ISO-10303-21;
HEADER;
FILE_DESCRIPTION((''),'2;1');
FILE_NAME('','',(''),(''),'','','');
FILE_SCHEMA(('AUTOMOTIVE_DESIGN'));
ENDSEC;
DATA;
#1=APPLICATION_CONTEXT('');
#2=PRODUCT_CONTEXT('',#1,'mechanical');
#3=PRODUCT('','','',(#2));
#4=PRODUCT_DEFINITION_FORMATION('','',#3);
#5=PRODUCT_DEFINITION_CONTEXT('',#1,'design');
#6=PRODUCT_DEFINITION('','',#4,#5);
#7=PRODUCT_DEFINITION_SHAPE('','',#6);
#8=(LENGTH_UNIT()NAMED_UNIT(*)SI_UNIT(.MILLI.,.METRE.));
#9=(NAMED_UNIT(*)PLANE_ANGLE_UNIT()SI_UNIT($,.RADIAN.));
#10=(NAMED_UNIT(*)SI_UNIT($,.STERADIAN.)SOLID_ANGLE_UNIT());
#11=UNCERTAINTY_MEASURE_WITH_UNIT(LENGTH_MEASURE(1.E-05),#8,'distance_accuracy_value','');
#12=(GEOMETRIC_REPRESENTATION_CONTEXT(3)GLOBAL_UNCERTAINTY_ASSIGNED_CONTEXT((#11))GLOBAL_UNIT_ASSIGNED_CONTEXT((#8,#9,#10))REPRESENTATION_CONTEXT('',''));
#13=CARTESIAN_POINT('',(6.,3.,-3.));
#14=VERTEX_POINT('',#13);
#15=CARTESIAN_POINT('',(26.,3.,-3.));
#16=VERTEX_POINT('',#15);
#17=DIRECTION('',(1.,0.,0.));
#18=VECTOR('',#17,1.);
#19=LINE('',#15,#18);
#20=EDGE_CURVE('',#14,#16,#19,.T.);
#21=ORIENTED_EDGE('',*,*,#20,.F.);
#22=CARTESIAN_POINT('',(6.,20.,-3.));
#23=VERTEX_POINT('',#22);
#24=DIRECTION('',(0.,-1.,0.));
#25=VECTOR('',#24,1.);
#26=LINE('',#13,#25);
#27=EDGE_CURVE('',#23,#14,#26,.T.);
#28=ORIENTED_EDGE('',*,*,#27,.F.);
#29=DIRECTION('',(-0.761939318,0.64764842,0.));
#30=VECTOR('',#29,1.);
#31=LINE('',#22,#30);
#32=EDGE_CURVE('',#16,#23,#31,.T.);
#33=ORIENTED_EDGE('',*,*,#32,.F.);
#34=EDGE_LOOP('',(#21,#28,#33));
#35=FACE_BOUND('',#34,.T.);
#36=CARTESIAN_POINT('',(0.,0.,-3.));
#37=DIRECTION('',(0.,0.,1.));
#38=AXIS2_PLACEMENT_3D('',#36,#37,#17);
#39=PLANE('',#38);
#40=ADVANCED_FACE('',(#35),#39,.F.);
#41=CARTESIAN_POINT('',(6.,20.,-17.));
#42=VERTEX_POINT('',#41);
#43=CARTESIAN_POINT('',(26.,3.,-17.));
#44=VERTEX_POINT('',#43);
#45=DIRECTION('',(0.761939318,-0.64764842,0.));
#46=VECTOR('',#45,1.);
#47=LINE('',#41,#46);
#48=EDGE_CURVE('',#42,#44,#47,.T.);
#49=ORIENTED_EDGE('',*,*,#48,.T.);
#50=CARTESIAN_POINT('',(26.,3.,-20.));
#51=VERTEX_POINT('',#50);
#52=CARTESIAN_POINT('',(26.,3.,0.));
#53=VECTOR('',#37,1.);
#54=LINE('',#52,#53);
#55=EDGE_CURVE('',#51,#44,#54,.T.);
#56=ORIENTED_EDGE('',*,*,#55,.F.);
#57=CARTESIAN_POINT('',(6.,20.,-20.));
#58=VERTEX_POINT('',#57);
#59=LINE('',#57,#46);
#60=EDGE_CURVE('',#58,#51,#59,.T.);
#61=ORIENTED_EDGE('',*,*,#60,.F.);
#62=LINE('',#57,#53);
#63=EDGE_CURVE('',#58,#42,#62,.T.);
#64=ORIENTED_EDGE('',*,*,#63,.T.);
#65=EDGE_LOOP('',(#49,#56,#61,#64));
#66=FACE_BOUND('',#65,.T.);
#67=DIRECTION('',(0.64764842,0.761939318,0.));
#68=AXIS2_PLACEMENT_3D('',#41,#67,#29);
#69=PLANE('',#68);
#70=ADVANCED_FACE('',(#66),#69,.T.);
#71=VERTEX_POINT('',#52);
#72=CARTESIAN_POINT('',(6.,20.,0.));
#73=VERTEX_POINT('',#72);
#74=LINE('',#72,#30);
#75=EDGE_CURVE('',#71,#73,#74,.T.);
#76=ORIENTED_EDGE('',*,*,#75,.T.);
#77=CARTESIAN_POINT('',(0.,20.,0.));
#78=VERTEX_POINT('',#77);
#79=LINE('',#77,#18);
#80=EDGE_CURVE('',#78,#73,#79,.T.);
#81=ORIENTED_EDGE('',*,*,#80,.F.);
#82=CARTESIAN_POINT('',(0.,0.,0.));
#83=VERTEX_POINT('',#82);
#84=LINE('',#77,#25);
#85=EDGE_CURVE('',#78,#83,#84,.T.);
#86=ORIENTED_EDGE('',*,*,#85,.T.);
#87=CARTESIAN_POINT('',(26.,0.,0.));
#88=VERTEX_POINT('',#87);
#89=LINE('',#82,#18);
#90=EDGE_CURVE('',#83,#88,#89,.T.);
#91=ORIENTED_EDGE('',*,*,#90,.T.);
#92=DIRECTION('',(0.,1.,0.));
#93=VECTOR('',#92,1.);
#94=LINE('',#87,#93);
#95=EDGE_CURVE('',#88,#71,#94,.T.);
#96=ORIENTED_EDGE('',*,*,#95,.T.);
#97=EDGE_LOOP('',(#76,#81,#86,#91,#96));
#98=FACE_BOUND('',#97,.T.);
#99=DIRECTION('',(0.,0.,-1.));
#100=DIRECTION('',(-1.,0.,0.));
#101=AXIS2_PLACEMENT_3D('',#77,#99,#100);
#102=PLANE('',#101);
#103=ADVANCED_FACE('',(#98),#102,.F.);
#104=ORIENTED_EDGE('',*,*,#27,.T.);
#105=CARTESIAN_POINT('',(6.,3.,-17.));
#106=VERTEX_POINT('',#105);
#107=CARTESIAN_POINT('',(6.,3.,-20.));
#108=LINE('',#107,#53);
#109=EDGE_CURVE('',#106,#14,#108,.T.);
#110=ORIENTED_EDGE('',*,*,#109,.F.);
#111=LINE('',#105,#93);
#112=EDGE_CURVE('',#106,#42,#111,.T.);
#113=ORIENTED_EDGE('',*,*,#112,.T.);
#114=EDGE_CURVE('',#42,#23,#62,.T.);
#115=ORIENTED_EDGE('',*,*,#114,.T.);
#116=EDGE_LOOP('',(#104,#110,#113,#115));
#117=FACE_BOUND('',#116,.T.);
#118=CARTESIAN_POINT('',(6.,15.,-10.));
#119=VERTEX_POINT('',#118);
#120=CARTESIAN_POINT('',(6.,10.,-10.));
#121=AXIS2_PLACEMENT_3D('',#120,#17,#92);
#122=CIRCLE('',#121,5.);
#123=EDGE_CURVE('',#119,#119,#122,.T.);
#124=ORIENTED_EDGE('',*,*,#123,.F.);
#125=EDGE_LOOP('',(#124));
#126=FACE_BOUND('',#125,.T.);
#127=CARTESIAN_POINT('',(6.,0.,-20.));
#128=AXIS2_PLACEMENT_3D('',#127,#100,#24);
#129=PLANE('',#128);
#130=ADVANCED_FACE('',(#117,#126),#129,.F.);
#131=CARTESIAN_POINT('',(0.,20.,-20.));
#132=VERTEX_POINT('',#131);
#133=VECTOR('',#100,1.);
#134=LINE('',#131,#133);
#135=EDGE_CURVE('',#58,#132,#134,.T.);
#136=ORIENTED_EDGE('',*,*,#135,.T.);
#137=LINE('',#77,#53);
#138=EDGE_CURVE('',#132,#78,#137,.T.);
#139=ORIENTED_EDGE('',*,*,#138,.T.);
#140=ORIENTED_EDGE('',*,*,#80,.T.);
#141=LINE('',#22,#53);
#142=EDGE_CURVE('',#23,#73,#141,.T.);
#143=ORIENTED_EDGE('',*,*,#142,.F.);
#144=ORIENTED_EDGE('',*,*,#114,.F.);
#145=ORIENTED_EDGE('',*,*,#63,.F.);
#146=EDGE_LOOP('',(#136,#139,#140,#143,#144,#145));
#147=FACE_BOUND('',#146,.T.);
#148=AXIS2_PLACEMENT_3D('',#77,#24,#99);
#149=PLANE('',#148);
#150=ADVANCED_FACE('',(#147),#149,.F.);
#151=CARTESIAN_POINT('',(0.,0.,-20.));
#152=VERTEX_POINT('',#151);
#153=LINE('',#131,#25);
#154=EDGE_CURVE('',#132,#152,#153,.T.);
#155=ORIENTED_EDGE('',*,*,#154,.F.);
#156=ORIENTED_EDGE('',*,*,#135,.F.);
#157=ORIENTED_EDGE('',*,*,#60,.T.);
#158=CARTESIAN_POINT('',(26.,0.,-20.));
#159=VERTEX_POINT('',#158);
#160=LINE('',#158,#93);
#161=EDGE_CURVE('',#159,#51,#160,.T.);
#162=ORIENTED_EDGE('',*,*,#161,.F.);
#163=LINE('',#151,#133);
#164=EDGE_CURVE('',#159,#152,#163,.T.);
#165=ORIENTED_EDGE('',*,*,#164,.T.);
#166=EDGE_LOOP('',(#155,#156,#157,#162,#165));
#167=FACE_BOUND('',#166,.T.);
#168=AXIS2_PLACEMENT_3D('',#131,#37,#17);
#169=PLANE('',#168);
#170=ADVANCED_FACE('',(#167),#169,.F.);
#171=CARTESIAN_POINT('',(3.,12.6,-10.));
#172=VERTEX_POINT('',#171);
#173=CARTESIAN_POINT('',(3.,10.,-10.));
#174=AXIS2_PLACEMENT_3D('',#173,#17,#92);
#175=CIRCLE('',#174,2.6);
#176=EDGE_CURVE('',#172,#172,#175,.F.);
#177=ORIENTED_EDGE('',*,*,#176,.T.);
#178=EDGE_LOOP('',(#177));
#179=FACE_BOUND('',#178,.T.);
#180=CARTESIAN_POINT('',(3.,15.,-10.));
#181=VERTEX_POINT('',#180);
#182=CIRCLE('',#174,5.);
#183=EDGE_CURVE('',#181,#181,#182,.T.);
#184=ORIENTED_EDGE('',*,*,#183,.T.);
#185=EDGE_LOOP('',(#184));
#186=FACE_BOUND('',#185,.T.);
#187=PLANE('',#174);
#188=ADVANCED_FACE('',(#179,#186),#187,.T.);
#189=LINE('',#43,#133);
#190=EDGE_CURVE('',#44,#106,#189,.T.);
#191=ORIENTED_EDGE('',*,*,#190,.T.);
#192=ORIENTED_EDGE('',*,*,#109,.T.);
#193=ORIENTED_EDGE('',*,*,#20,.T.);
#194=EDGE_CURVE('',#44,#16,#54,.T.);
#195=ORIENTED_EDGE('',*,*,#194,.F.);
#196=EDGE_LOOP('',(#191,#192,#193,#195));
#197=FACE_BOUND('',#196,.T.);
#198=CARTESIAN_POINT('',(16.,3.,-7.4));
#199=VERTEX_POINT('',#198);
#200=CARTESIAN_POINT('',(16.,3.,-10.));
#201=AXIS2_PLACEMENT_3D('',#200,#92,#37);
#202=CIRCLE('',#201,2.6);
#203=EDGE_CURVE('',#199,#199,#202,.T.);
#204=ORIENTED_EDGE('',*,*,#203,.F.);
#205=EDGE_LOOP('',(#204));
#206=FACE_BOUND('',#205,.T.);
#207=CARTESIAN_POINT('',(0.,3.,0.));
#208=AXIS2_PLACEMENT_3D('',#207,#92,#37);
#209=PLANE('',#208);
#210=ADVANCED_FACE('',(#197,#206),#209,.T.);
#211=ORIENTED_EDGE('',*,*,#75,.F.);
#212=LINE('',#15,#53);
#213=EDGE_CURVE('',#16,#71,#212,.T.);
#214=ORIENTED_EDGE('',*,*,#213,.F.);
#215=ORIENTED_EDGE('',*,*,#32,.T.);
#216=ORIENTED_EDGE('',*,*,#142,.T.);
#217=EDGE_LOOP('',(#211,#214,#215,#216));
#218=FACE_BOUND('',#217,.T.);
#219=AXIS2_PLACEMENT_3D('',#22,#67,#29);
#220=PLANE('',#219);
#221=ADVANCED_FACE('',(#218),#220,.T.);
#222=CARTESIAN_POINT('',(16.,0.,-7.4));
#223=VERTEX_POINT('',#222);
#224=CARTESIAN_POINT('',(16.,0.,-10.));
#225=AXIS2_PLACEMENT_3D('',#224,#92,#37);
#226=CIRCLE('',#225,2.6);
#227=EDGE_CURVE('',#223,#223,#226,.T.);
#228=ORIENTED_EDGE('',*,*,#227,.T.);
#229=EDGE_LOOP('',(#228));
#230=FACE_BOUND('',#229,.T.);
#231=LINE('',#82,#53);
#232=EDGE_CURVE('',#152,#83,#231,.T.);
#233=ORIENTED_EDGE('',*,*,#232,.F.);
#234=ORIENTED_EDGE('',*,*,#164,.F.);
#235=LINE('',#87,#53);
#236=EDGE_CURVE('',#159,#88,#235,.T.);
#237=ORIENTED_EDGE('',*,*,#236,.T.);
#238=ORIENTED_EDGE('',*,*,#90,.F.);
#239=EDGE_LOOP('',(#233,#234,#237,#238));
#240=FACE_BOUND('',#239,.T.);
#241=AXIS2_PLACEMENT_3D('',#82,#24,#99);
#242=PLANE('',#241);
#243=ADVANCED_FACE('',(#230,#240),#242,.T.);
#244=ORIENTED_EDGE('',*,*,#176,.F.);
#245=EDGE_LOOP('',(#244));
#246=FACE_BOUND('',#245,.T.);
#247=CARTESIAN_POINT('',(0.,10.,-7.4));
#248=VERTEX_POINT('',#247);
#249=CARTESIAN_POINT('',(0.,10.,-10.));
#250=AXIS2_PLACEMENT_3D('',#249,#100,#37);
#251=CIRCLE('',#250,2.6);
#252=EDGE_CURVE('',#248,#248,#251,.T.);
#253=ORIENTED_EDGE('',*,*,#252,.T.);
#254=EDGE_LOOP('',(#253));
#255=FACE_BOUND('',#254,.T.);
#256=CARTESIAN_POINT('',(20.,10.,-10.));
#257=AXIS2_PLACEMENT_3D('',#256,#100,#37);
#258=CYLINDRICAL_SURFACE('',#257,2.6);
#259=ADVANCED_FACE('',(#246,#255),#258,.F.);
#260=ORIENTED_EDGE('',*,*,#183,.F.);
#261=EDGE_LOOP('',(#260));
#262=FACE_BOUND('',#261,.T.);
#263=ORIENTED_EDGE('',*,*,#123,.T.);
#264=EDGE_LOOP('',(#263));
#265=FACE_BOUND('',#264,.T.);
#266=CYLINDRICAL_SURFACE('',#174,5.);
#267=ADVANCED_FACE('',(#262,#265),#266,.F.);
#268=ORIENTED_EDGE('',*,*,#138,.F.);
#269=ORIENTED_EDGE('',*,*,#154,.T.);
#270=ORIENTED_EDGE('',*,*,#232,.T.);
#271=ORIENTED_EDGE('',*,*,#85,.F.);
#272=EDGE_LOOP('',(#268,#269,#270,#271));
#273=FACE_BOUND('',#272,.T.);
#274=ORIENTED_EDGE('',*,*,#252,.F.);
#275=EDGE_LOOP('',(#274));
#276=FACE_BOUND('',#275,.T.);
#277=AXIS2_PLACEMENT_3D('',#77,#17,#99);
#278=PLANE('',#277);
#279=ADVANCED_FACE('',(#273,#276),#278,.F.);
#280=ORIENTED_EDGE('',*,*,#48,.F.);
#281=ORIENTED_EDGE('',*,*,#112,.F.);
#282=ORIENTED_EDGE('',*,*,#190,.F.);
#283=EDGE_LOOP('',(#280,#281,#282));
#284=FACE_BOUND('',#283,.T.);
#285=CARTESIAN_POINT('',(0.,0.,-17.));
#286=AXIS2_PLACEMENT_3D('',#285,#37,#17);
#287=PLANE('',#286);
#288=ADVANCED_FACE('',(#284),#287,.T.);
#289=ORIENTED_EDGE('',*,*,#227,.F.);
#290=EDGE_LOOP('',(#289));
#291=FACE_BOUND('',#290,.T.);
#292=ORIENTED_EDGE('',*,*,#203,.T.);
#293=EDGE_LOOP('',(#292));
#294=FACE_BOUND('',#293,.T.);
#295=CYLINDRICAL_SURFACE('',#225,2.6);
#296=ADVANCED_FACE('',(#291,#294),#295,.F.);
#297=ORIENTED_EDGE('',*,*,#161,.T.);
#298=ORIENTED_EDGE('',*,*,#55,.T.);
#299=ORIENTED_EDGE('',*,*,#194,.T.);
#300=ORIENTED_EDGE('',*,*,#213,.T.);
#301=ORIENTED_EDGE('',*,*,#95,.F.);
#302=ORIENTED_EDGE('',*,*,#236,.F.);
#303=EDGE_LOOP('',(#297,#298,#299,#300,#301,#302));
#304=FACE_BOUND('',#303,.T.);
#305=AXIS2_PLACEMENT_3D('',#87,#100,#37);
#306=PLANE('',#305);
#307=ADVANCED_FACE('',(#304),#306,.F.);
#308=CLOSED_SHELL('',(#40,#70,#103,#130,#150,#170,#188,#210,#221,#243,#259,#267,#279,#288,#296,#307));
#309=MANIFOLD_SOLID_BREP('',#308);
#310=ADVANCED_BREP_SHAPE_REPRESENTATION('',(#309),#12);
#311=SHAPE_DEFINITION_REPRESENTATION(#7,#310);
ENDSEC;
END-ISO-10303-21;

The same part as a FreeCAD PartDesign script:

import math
import FreeCAD as App
import Part
import Sketcher
from FreeCAD import Vector
Q = App.Units.Quantity


def add_polygon(sketch, points):
    """Adds a closed chain of lines whose ends are joined by coincident constraints."""
    first, n = sketch.GeometryCount, len(points)
    for a, b in zip(points, points[1:] + points[:1]):
        sketch.addGeometry(Part.LineSegment(App.Vector(*a, 0), App.Vector(*b, 0)), False)
    for i in range(n):
        sketch.addConstraint(Sketcher.Constraint("Coincident", first + i, 2, first + (i + 1) % n, 1))

doc = App.newDocument("Part")
body = doc.addObject("PartDesign::Body", "Body")

sketch1 = body.newObject("Sketcher::SketchObject", "Sketch")
sketch1.AttachmentSupport = (doc.getObject("XZ_Plane"), [""])
sketch1.MapMode = "FlatFace"
add_polygon(sketch1, [(0, -20), (0, 0), (40, 0), (40, -20)])
sketch1.addConstraint([
    Sketcher.Constraint("Vertical", 0),
    Sketcher.Constraint("Horizontal", 1),
    Sketcher.Constraint("Vertical", 2),
    Sketcher.Constraint("Horizontal", 3),
    Sketcher.Constraint("Coincident", 0, 2, -1, 1),
    Sketcher.Constraint("DistanceX", 1, 1, 1, 2, Q("40 mm")),
    Sketcher.Constraint("DistanceY", 0, 1, 0, 2, Q("20 mm")),
])
pad1 = body.newObject("PartDesign::Pad", "Pad")
pad1.Profile = sketch1
pad1.Length = 20
pad1.Reversed = True

sketch2 = body.newObject("Sketcher::SketchObject", "Sketch001")
sketch2.AttachmentSupport = (doc.getObject("XY_Plane"), [""])
sketch2.MapMode = "FlatFace"
add_polygon(sketch2, [(6, 20), (6, 6), (40, 6), (40, 20)])
sketch2.addConstraint([
    Sketcher.Constraint("Vertical", 0),
    Sketcher.Constraint("Horizontal", 1),
    Sketcher.Constraint("Vertical", 2),
    Sketcher.Constraint("Horizontal", 3),
    Sketcher.Constraint("DistanceX", 1, 1, 1, 2, Q("34 mm")),
    Sketcher.Constraint("DistanceY", 0, 2, 0, 1, Q("14 mm")),
    Sketcher.Constraint("DistanceX", -1, 1, 0, 2, Q("6 mm")),
    Sketcher.Constraint("DistanceY", -1, 1, 0, 2, Q("6 mm")),
])
pocket1 = body.newObject("PartDesign::Pocket", "Pocket")
pocket1.Profile = sketch2
pocket1.Length = 20

sketch3 = body.newObject("Sketcher::SketchObject", "Sketch002")
sketch3.AttachmentSupport = (doc.getObject("YZ_Plane"), [""])
sketch3.MapMode = "FlatFace"
sketch3.addGeometry([
    Part.ArcOfCircle(Part.Circle(Vector(10, -10, 0), Vector(0, 0, 1), 2.6), math.radians(-45), math.radians(90)),
    Part.ArcOfCircle(Part.Circle(Vector(10, -10, 0), Vector(0, 0, 1), 2.6), math.radians(135), math.radians(315)),
    Part.ArcOfCircle(Part.Circle(Vector(10, -10, 0), Vector(0, 0, 1), 2.6), math.radians(90), math.radians(135)),
], False)
sketch3.addConstraint([
    Sketcher.Constraint("Tangent", 0, 1, 1, 2),
    Sketcher.Constraint("Tangent", 1, 1, 2, 2),
    Sketcher.Constraint("Tangent", 2, 1, 0, 2),
    Sketcher.Constraint("Vertical", 1, 3, 2, 1),
    Sketcher.Constraint("Radius", 0, Q("2.6 mm")),
    Sketcher.Constraint("DistanceX", -1, 1, 0, 3, Q("10 mm")),
    Sketcher.Constraint("DistanceY", 0, 3, -1, 1, Q("10 mm")),
    Sketcher.Constraint("DistanceX", -1, 1, 0, 1, Q("11.838478 mm")),
    Sketcher.Constraint("DistanceX", -1, 1, 1, 1, Q("8.161522 mm")),
])
pocket2 = body.newObject("PartDesign::Pocket", "Pocket001")
pocket2.Profile = sketch3
pocket2.Length = 20
pocket2.Reversed = True

sketch4 = body.newObject("Sketcher::SketchObject", "Sketch003")
sketch4.AttachmentSupport = (doc.getObject("YZ_Plane"), [""])
sketch4.MapMode = "FlatFace"
sketch4.AttachmentOffset = App.Placement(Vector(0, 0, 6), App.Rotation())
sketch4.addGeometry(Part.Circle(Vector(10, -10, 0), Vector(0, 0, 1), 5), False)
sketch4.addConstraint([
    Sketcher.Constraint("Diameter", 0, Q("10 mm")),
    Sketcher.Constraint("DistanceX", -1, 1, 0, 3, Q("10 mm")),
    Sketcher.Constraint("DistanceY", 0, 3, -1, 1, Q("10 mm")),
])
pocket3 = body.newObject("PartDesign::Pocket", "Pocket002")
pocket3.Profile = sketch4
pocket3.Length = 3

sketch5 = body.newObject("Sketcher::SketchObject", "Sketch004")
sketch5.AttachmentSupport = (doc.getObject("XZ_Plane"), [""])
sketch5.MapMode = "FlatFace"
sketch5.AttachmentOffset = App.Placement(Vector(0, 0, -6), App.Rotation())
add_polygon(sketch5, [(6, -20), (6, 0), (40, 0), (40, -20)])
sketch5.addConstraint([
    Sketcher.Constraint("Vertical", 0),
    Sketcher.Constraint("Horizontal", 1),
    Sketcher.Constraint("Vertical", 2),
    Sketcher.Constraint("Horizontal", 3),
    Sketcher.Constraint("PointOnObject", 0, 2, -1),
    Sketcher.Constraint("DistanceX", 1, 1, 1, 2, Q("34 mm")),
    Sketcher.Constraint("DistanceY", 0, 1, 0, 2, Q("20 mm")),
    Sketcher.Constraint("DistanceX", -1, 1, 0, 2, Q("6 mm")),
])
pocket4 = body.newObject("PartDesign::Pocket", "Pocket003")
pocket4.Profile = sketch5
pocket4.Length = 3
pocket4.Reversed = True

sketch6 = body.newObject("Sketcher::SketchObject", "Sketch005")
sketch6.AttachmentSupport = (doc.getObject("XZ_Plane"), [""])
sketch6.MapMode = "FlatFace"
sketch6.AttachmentOffset = App.Placement(Vector(0, 0, -3), App.Rotation())
add_polygon(sketch6, [(26, -20), (26, 0), (40, 0), (40, -20)])
sketch6.addGeometry(Part.ArcOfCircle(Part.Circle(Vector(16, -10, 0), Vector(0, 0, 1), 2.6), math.radians(-135), math.radians(0)), False)
sketch6.addGeometry(Part.ArcOfCircle(Part.Circle(Vector(16, -10, 0), Vector(0, 0, 1), 2.6), math.radians(45), math.radians(225)), False)
sketch6.addGeometry(Part.ArcOfCircle(Part.Circle(Vector(16, -10, 0), Vector(0, 0, 1), 2.6), math.radians(0), math.radians(45)), False)
sketch6.addConstraint([
    Sketcher.Constraint("Tangent", 4, 1, 5, 2),
    Sketcher.Constraint("Tangent", 5, 1, 6, 2),
    Sketcher.Constraint("Tangent", 6, 1, 4, 2),
    Sketcher.Constraint("Vertical", 0),
    Sketcher.Constraint("Horizontal", 1),
    Sketcher.Constraint("Vertical", 2),
    Sketcher.Constraint("Horizontal", 3),
    Sketcher.Constraint("PointOnObject", 0, 2, -1),
    Sketcher.Constraint("Horizontal", 5, 3, 6, 1),
    Sketcher.Constraint("Radius", 4, Q("2.6 mm")),
    Sketcher.Constraint("DistanceX", 1, 1, 1, 2, Q("14 mm")),
    Sketcher.Constraint("DistanceY", 0, 1, 0, 2, Q("20 mm")),
    Sketcher.Constraint("DistanceX", -1, 1, 4, 3, Q("16 mm")),
    Sketcher.Constraint("DistanceY", 4, 3, -1, 1, Q("10 mm")),
    Sketcher.Constraint("DistanceX", -1, 1, 0, 2, Q("26 mm")),
    Sketcher.Constraint("DistanceX", -1, 1, 4, 1, Q("14.161522 mm")),
    Sketcher.Constraint("DistanceX", -1, 1, 5, 1, Q("17.838478 mm")),
])
pocket5 = body.newObject("PartDesign::Pocket", "Pocket004")
pocket5.Profile = sketch6
pocket5.Length = 3
pocket5.Reversed = True

sketch7 = body.newObject("Sketcher::SketchObject", "Sketch006")
sketch7.AttachmentSupport = (doc.getObject("XY_Plane"), [""])
sketch7.MapMode = "FlatFace"
add_polygon(sketch7, [(26, 3), (6, 20), (6, 3)])
sketch7.addConstraint([
    Sketcher.Constraint("Vertical", 1),
    Sketcher.Constraint("Horizontal", 2),
    Sketcher.Constraint("DistanceX", 2, 1, 2, 2, Q("20 mm")),
    Sketcher.Constraint("DistanceY", 1, 2, 1, 1, Q("17 mm")),
    Sketcher.Constraint("DistanceX", -1, 1, 0, 2, Q("6 mm")),
    Sketcher.Constraint("DistanceY", -1, 1, 0, 2, Q("20 mm")),
])
pad2 = body.newObject("PartDesign::Pad", "Pad001")
pad2.Profile = sketch7
pad2.Length = 3
pad2.Reversed = True

sketch8 = body.newObject("Sketcher::SketchObject", "Sketch007")
sketch8.AttachmentSupport = (doc.getObject("XY_Plane"), [""])
sketch8.MapMode = "FlatFace"
sketch8.AttachmentOffset = App.Placement(Vector(0, 0, -20), App.Rotation())
add_polygon(sketch8, [(26, 3), (6, 3), (6, 20)])
sketch8.addConstraint([
    Sketcher.Constraint("Horizontal", 0),
    Sketcher.Constraint("Vertical", 1),
    Sketcher.Constraint("DistanceX", 0, 2, 0, 1, Q("20 mm")),
    Sketcher.Constraint("DistanceY", 1, 1, 1, 2, Q("17 mm")),
    Sketcher.Constraint("DistanceX", -1, 1, 0, 2, Q("6 mm")),
    Sketcher.Constraint("DistanceY", -1, 1, 0, 2, Q("3 mm")),
])
pad3 = body.newObject("PartDesign::Pad", "Pad002")
pad3.Profile = sketch8
pad3.Length = 3

doc.recompute()
